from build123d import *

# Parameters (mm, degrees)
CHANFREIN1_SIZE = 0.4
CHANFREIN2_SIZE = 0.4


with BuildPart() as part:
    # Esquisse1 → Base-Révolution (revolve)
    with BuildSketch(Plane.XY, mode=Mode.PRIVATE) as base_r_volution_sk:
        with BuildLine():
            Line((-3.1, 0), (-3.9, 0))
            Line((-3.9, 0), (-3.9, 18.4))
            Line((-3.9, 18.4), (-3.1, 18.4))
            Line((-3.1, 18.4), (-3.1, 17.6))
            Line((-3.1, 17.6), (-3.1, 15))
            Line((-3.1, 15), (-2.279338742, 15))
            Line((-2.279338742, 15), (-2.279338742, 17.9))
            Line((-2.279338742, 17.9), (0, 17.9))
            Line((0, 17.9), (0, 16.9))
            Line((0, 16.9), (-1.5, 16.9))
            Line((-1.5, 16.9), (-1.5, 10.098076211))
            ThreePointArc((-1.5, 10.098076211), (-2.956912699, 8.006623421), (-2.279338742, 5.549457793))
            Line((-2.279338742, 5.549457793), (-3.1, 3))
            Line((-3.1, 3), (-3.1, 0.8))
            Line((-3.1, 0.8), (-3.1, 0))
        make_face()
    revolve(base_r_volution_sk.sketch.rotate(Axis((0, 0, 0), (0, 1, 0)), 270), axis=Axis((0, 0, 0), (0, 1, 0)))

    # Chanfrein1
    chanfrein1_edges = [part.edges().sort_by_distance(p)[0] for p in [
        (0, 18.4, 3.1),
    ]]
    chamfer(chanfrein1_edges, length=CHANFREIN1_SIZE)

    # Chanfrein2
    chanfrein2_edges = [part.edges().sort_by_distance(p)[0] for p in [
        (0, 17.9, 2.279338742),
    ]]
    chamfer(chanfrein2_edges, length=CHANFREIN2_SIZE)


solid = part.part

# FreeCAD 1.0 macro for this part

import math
import FreeCAD as App
import Part
import Sketcher
from FreeCAD import Vector


def edges_at(feature, points):
    """Names of the edges that pass closest to the given points."""
    edges = feature.Shape.Edges
    near = lambda p: min(range(len(edges)), key=lambda i: edges[i].distToShape(Part.Vertex(*p))[0])
    return sorted({f"Edge{near(p) + 1}" for p in points})

doc = App.newDocument("Part")
body = doc.addObject("PartDesign::Body", "Body")

# Sketch on XY plane
sketch1 = body.newObject("Sketcher::SketchObject", "Sketch")
sketch1.AttachmentSupport = (doc.getObject("XY_Plane"), [""])
sketch1.MapMode = "FlatFace"
sketch1.addGeometry(Part.LineSegment(Vector(-3.9, 0, 0), Vector(-3.1, 0, 0)), False)
sketch1.addGeometry(Part.LineSegment(Vector(-3.1, 0, 0), Vector(-3.1, 3, 0)), False)
sketch1.addGeometry(Part.LineSegment(Vector(-3.1, 3, 0), Vector(-2.279339, 5.549458, 0)), False)
sketch1.addGeometry(Part.ArcOfCircle(Part.Circle(Vector(0, 7.5, 0), Vector(0, 0, 1), 3), math.radians(120), math.radians(220.55523)), False)
sketch1.addGeometry(Part.LineSegment(Vector(-1.5, 10.098076, 0), Vector(-1.5, 16.9, 0)), False)
sketch1.addGeometry(Part.LineSegment(Vector(-1.5, 16.9, 0), Vector(0, 16.9, 0)), False)
sketch1.addGeometry(Part.LineSegment(Vector(0, 16.9, 0), Vector(0, 17.9, 0)), False)
sketch1.addGeometry(Part.LineSegment(Vector(0, 17.9, 0), Vector(-2.279339, 17.9, 0)), False)
sketch1.addGeometry(Part.LineSegment(Vector(-2.279339, 17.9, 0), Vector(-2.279339, 15, 0)), False)
sketch1.addGeometry(Part.LineSegment(Vector(-2.279339, 15, 0), Vector(-3.1, 15, 0)), False)
sketch1.addGeometry(Part.LineSegment(Vector(-3.1, 15, 0), Vector(-3.1, 18.4, 0)), False)
sketch1.addGeometry(Part.LineSegment(Vector(-3.1, 18.4, 0), Vector(-3.9, 18.4, 0)), False)
sketch1.addGeometry(Part.LineSegment(Vector(-3.9, 18.4, 0), Vector(-3.9, 0, 0)), False)
sketch1.addConstraint(Sketcher.Constraint("Coincident", 0, 2, 1, 1))
sketch1.addConstraint(Sketcher.Constraint("Coincident", 1, 2, 2, 1))
sketch1.addConstraint(Sketcher.Constraint("Coincident", 2, 2, 3, 2))
sketch1.addConstraint(Sketcher.Constraint("Coincident", 3, 1, 4, 1))
sketch1.addConstraint(Sketcher.Constraint("Coincident", 4, 2, 5, 1))
sketch1.addConstraint(Sketcher.Constraint("Coincident", 5, 2, 6, 1))
sketch1.addConstraint(Sketcher.Constraint("Coincident", 6, 2, 7, 1))
sketch1.addConstraint(Sketcher.Constraint("Coincident", 7, 2, 8, 1))
sketch1.addConstraint(Sketcher.Constraint("Coincident", 8, 2, 9, 1))
sketch1.addConstraint(Sketcher.Constraint("Coincident", 9, 2, 10, 1))
sketch1.addConstraint(Sketcher.Constraint("Coincident", 10, 2, 11, 1))
sketch1.addConstraint(Sketcher.Constraint("Coincident", 11, 2, 12, 1))
sketch1.addConstraint(Sketcher.Constraint("Coincident", 12, 2, 0, 1))
sketch1.addConstraint(Sketcher.Constraint("Horizontal", 0))
sketch1.addConstraint(Sketcher.Constraint("Vertical", 1))
sketch1.addConstraint(Sketcher.Constraint("Vertical", 4))
sketch1.addConstraint(Sketcher.Constraint("Horizontal", 5))
sketch1.addConstraint(Sketcher.Constraint("Vertical", 6))
sketch1.addConstraint(Sketcher.Constraint("Horizontal", 7))
sketch1.addConstraint(Sketcher.Constraint("Vertical", 8))
sketch1.addConstraint(Sketcher.Constraint("Horizontal", 9))
sketch1.addConstraint(Sketcher.Constraint("Vertical", 10))
sketch1.addConstraint(Sketcher.Constraint("Horizontal", 11))
sketch1.addConstraint(Sketcher.Constraint("Vertical", 12))
sketch1.addConstraint(Sketcher.Constraint("PointOnObject", 3, 3, -2))
sketch1.addConstraint(Sketcher.Constraint("PointOnObject", 0, 2, -1))
sketch1.addConstraint(Sketcher.Constraint("PointOnObject", 5, 2, -2))
sketch1.addConstraint(Sketcher.Constraint("Vertical", 2, 2, 7, 2))
sketch1.addConstraint(Sketcher.Constraint("Vertical", 1, 2, 9, 2))
sketch1.addConstraint(Sketcher.Constraint("Radius", 3, 3.0))
sketch1.addConstraint(Sketcher.Constraint("DistanceY", 1, 1, 1, 2, 3.0))
sketch1.addConstraint(Sketcher.Constraint("DistanceY", 6, 1, 6, 2, 1.0))
sketch1.addConstraint(Sketcher.Constraint("DistanceX", 0, 1, 0, 2, 0.8))
sketch1.addConstraint(Sketcher.Constraint("DistanceX", 5, 1, 5, 2, 1.5))
sketch1.addConstraint(Sketcher.Constraint("DistanceY", 8, 2, 8, 1, 2.9))
sketch1.addConstraint(Sketcher.Constraint("DistanceY", 10, 1, 10, 2, 3.4))
sketch1.addConstraint(Sketcher.Constraint("DistanceY", 12, 2, 12, 1, 18.4))
sketch1.addConstraint(Sketcher.Constraint("DistanceY", -1, 1, 3, 3, 7.5))
sketch1.addConstraint(Sketcher.Constraint("DistanceX", 0, 2, -1, 1, 3.1))
sketch1.addConstraint(Sketcher.Constraint("DistanceX", 7, 2, 7, 1, 2.279339))
revolution = body.newObject("PartDesign::Revolution", "Revolution")
revolution.Profile = sketch1
revolution.ReferenceAxis = (sketch1, ["V_Axis"])
revolution.Angle = 360
doc.recompute()

chamfer = body.newObject("PartDesign::Chamfer", "Chamfer")
chamfer.Base = (revolution, edges_at(revolution, [(0, 18.4, 3.1)]))
chamfer.Size = 0.4
doc.recompute()

chamfer2 = body.newObject("PartDesign::Chamfer", "Chamfer001")
chamfer2.Base = (chamfer, edges_at(chamfer, [(0, 17.9, 2.279)]))
chamfer2.Size = 0.4

doc.recompute()
